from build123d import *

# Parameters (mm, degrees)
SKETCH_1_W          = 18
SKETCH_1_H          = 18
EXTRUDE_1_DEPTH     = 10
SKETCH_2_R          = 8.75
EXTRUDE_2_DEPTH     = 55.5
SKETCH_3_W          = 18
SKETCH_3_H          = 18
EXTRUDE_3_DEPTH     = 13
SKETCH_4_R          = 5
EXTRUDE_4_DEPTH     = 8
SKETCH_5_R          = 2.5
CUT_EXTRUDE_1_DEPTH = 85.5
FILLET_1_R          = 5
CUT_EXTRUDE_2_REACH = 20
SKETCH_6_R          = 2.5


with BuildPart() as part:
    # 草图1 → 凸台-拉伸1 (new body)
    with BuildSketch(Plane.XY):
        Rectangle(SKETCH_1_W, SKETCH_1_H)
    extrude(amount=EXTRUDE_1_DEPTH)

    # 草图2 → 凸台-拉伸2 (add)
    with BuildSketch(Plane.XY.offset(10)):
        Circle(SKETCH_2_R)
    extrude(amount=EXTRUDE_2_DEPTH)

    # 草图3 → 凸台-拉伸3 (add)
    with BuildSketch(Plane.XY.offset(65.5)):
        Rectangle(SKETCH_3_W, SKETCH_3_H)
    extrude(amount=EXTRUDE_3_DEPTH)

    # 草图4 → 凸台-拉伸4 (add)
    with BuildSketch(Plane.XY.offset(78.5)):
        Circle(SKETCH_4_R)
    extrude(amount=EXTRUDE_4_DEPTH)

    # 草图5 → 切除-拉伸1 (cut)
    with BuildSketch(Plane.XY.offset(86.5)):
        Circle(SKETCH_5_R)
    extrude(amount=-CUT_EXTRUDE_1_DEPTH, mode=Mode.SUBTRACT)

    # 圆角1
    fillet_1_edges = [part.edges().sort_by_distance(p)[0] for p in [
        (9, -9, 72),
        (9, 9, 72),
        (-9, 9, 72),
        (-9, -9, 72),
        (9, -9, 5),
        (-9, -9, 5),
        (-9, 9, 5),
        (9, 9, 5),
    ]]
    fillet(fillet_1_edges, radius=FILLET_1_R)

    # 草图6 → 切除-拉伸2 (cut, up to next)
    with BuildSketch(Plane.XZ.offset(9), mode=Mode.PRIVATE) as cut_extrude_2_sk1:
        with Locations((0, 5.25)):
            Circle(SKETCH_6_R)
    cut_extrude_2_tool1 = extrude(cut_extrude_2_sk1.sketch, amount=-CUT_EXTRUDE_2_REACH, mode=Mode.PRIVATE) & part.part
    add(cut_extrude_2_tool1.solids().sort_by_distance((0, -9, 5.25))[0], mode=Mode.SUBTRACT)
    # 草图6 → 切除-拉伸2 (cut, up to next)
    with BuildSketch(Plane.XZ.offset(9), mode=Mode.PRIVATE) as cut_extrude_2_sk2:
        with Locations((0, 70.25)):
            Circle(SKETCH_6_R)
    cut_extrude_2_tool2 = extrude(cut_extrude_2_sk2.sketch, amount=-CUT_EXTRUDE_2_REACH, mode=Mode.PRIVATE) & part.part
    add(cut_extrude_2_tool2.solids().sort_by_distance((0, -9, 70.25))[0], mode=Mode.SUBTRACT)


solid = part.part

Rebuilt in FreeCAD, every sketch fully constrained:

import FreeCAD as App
import Part
import Sketcher
from FreeCAD import Vector
Q = App.Units.Quantity


def edges_at(feature, points):
    """Names of the edges that pass closest to the given points."""
    edges = feature.Shape.Edges
    near = lambda p: min(range(len(edges)), key=lambda i: edges[i].distToShape(Part.Vertex(*p))[0])
    return sorted({f"Edge{near(p) + 1}" for p in points})


def add_polygon(sketch, points):
    """Adds a closed chain of lines whose ends are joined by coincident constraints."""
    first, n = sketch.GeometryCount, len(points)
    for a, b in zip(points, points[1:] + points[:1]):
        sketch.addGeometry(Part.LineSegment(App.Vector(*a, 0), App.Vector(*b, 0)), False)
    for i in range(n):
        sketch.addConstraint(Sketcher.Constraint("Coincident", first + i, 2, first + (i + 1) % n, 1))

doc = App.newDocument("Part")
body = doc.addObject("PartDesign::Body", "Body")

# Sketch on XY plane
sketch1 = body.newObject("Sketcher::SketchObject", "Sketch")
sketch1.AttachmentSupport = (doc.getObject("XY_Plane"), [""])
sketch1.MapMode = "FlatFace"
add_polygon(sketch1, [(-9, 9), (-9, -9), (9, -9), (9, 9)])  # lines 0-3
sketch1.addConstraint([
    Sketcher.Constraint("Vertical", 0),
    Sketcher.Constraint("Horizontal", 1),
    Sketcher.Constraint("Vertical", 2),
    Sketcher.Constraint("Horizontal", 3),
    Sketcher.Constraint("Symmetric", 0, 2, 2, 2, -1, 1),
    Sketcher.Constraint("Equal", 3, 0),
    Sketcher.Constraint("DistanceX", 1, 1, 1, 2, Q("18 mm")),
])
pad1 = body.newObject("PartDesign::Pad", "Pad")
pad1.Profile = sketch1
pad1.Length = 10

# Sketch on XY plane
sketch2 = body.newObject("Sketcher::SketchObject", "Sketch001")
sketch2.AttachmentSupport = (doc.getObject("XY_Plane"), [""])
sketch2.MapMode = "FlatFace"
sketch2.AttachmentOffset = App.Placement(Vector(0, 0, 10), App.Rotation())
sketch2.addGeometry(Part.Circle(Vector(0, 0, 0), Vector(0, 0, 1), 9), False)
sketch2.addConstraint([
    Sketcher.Constraint("Coincident", 0, 3, -1, 1),
    Sketcher.Constraint("Diameter", 0, Q("17.5 mm")),
])
pad2 = body.newObject("PartDesign::Pad", "Pad001")
pad2.Profile = sketch2
pad2.Length = 55.5

# Sketch on XY plane
sketch3 = body.newObject("Sketcher::SketchObject", "Sketch002")
sketch3.AttachmentSupport = (doc.getObject("XY_Plane"), [""])
sketch3.MapMode = "FlatFace"
sketch3.AttachmentOffset = App.Placement(Vector(0, 0, 65.5), App.Rotation())
add_polygon(sketch3, [(-9, 9), (-9, -9), (9, -9), (9, 9)])  # lines 0-3
sketch3.addConstraint([
    Sketcher.Constraint("Vertical", 0),
    Sketcher.Constraint("Horizontal", 1),
    Sketcher.Constraint("Vertical", 2),
    Sketcher.Constraint("Horizontal", 3),
    Sketcher.Constraint("Symmetric", 0, 2, 2, 2, -1, 1),
    Sketcher.Constraint("Equal", 3, 0),
    Sketcher.Constraint("DistanceX", 1, 1, 1, 2, Q("18 mm")),
])
pad3 = body.newObject("PartDesign::Pad", "Pad002")
pad3.Profile = sketch3
pad3.Length = 13

# Sketch on XY plane
sketch4 = body.newObject("Sketcher::SketchObject", "Sketch003")
sketch4.AttachmentSupport = (doc.getObject("XY_Plane"), [""])
sketch4.MapMode = "FlatFace"
sketch4.AttachmentOffset = App.Placement(Vector(0, 0, 78.5), App.Rotation())
sketch4.addGeometry(Part.Circle(Vector(0, 0, 0), Vector(0, 0, 1), 5), False)
sketch4.addConstraint([
    Sketcher.Constraint("Coincident", 0, 3, -1, 1),
    Sketcher.Constraint("Diameter", 0, Q("10 mm")),
])
pad4 = body.newObject("PartDesign::Pad", "Pad003")
pad4.Profile = sketch4
pad4.Length = 8

# Sketch on XY plane
sketch5 = body.newObject("Sketcher::SketchObject", "Sketch004")
sketch5.AttachmentSupport = (doc.getObject("XY_Plane"), [""])
sketch5.MapMode = "FlatFace"
sketch5.AttachmentOffset = App.Placement(Vector(0, 0, 86.5), App.Rotation())
sketch5.addGeometry(Part.Circle(Vector(0, 0, 0), Vector(0, 0, 1), 2.5), False)
sketch5.addConstraint([
    Sketcher.Constraint("Coincident", 0, 3, -1, 1),
    Sketcher.Constraint("Diameter", 0, Q("5 mm")),
])
pocket1 = body.newObject("PartDesign::Pocket", "Pocket")
pocket1.Profile = sketch5
pocket1.Length = 85.5
doc.recompute()

fillet = body.newObject("PartDesign::Fillet", "Fillet")
fillet.Base = (pocket1, edges_at(pocket1, [
    (9, -9, 72),
    (9, 9, 72),
    (-9, 9, 72),
    (-9, -9, 72),
    (9, -9, 5),
    (-9, -9, 5),
    (-9, 9, 5),
    (9, 9, 5),
]))
fillet.Radius = 5

# Sketch on XZ plane
sketch6 = body.newObject("Sketcher::SketchObject", "Sketch005")
sketch6.AttachmentSupport = (doc.getObject("XZ_Plane"), [""])
sketch6.MapMode = "FlatFace"
sketch6.AttachmentOffset = App.Placement(Vector(0, 0, 9), App.Rotation())
sketch6.addGeometry(Part.Circle(Vector(0, 5.2, 0), Vector(0, 0, 1), 2.5), False)
sketch6.addConstraint([
    Sketcher.Constraint("PointOnObject", 0, 3, -2),
    Sketcher.Constraint("Diameter", 0, Q("5 mm")),
    Sketcher.Constraint("DistanceY", -1, 1, 0, 3, Q("5.25 mm")),
])
pocket2 = body.newObject("PartDesign::Pocket", "Pocket001")
pocket2.Profile = sketch6
pocket2.Length = 9

# Sketch on XZ plane
sketch7 = body.newObject("Sketcher::SketchObject", "Sketch006")
sketch7.AttachmentSupport = (doc.getObject("XZ_Plane"), [""])
sketch7.MapMode = "FlatFace"
sketch7.AttachmentOffset = App.Placement(Vector(0, 0, 9), App.Rotation())
sketch7.addGeometry(Part.Circle(Vector(0, 70.2, 0), Vector(0, 0, 1), 2.5), False)
sketch7.addConstraint([
    Sketcher.Constraint("PointOnObject", 0, 3, -2),
    Sketcher.Constraint("Diameter", 0, Q("5 mm")),
    Sketcher.Constraint("DistanceY", -1, 1, 0, 3, Q("70.25 mm")),
])
pocket3 = body.newObject("PartDesign::Pocket", "Pocket002")
pocket3.Profile = sketch7
pocket3.Length = 9

doc.recompute()
